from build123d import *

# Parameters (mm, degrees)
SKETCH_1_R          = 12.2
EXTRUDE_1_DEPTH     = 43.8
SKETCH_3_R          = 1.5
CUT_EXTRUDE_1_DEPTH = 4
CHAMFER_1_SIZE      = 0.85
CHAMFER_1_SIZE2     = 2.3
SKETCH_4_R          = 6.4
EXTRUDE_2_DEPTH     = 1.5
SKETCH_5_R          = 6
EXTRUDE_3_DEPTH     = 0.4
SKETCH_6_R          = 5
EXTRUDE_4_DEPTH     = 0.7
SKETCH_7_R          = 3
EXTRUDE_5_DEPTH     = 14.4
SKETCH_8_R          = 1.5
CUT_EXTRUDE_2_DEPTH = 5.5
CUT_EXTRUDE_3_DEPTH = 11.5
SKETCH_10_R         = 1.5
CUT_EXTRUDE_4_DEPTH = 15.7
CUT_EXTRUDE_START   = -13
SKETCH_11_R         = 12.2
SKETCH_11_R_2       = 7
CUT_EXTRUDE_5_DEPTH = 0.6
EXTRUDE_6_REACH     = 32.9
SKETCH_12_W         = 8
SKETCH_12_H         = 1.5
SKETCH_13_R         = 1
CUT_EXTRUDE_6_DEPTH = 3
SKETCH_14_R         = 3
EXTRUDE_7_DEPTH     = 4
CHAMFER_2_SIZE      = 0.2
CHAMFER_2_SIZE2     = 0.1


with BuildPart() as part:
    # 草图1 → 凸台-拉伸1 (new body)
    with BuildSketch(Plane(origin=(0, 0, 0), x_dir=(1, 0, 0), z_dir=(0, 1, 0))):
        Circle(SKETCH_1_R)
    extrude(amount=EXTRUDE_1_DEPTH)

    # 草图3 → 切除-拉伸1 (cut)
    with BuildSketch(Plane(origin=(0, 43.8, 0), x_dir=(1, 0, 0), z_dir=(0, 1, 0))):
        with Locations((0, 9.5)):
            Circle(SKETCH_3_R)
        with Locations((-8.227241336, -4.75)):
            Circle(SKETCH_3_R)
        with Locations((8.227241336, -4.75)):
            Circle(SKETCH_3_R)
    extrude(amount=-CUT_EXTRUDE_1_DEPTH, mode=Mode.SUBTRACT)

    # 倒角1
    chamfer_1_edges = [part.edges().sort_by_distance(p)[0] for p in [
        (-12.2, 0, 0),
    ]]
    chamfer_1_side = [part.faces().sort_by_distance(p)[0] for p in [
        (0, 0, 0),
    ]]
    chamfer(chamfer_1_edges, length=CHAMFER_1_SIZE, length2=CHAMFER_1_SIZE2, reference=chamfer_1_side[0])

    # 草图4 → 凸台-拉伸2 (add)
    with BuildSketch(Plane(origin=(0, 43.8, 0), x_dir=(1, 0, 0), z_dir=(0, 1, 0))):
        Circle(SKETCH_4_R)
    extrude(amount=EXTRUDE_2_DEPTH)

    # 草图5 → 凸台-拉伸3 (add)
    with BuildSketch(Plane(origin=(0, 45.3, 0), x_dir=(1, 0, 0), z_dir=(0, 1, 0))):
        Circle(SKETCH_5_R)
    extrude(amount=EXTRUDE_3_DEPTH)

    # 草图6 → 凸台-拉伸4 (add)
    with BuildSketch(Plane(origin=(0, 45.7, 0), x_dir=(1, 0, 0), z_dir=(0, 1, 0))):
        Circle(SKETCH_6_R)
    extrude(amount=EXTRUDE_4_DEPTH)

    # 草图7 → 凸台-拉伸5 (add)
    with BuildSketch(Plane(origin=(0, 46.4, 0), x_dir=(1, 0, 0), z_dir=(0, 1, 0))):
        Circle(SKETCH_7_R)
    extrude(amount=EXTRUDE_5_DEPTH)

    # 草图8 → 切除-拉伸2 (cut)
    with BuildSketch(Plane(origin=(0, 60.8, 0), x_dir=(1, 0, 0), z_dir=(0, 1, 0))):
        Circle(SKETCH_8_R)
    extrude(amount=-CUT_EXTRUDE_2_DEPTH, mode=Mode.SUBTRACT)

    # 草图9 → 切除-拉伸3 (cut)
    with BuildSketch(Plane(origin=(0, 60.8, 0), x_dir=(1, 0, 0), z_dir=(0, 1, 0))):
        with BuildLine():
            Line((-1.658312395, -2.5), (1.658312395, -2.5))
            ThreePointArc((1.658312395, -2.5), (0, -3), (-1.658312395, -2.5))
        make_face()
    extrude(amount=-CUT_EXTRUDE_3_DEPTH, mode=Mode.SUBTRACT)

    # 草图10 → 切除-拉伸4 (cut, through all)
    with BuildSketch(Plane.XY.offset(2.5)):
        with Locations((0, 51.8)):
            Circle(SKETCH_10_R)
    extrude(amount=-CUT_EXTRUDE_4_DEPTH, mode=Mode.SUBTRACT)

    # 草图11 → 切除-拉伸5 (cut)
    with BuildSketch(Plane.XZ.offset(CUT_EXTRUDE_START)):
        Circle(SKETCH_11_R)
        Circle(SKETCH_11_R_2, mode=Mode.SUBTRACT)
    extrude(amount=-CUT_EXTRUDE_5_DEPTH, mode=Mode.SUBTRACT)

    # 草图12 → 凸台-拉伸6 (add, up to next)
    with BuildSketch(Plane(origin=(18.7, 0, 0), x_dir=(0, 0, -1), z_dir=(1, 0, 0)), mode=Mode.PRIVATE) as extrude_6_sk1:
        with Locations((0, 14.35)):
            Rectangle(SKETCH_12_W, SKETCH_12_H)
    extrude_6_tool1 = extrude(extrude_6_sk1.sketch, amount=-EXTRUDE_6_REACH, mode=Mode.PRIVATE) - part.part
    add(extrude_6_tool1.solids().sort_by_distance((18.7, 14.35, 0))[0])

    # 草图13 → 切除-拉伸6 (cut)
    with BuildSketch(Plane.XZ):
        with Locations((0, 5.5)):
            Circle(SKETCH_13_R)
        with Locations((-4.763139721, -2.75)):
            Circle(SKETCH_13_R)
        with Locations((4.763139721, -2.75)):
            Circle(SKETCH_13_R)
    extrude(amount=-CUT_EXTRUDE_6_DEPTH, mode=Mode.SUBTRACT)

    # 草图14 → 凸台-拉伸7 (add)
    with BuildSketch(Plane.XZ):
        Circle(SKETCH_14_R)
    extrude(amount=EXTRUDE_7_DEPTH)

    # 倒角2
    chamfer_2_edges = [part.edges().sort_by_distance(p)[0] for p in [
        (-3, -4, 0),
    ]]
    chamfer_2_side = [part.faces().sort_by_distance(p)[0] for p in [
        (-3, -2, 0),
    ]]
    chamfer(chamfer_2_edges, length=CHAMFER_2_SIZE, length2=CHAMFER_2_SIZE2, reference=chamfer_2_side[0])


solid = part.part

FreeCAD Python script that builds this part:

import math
import FreeCAD as App
import Part
import Sketcher
Q = App.Units.Quantity


def edges_at(feature, points):
    """Names of the edges that pass closest to the given points."""
    edges = feature.Shape.Edges
    near = lambda p: min(range(len(edges)), key=lambda i: edges[i].distToShape(Part.Vertex(*p))[0])
    return sorted({f"Edge{near(p) + 1}" for p in points})

doc = App.newDocument("Part")
params = doc.addObject("Spreadsheet::Sheet", "Params")
for row, (alias, value) in enumerate([
    ("sketch1_diameter", "24.4 mm"),
    ("pad1_length", "43.8 mm"),
    ("sketch2_diameter", "3 mm"),
    ("pocket1_length", "4 mm"),
    ("chamfer_size", "0.85 mm"),
    ("chamfer_size2", "2.3 mm"),
    ("sketch3_diameter", "12.8 mm"),
    ("pad2_length", "1.5 mm"),
    ("sketch4_diameter", "12 mm"),
    ("pad3_length", "0.4 mm"),
    ("sketch5_diameter", "10 mm"),
    ("pad4_length", "0.7 mm"),
    ("sketch6_diameter", "6 mm"),
    ("pad5_length", "14.4 mm"),
    ("sketch7_diameter", "3 mm"),
    ("pocket2_length", "5.5 mm"),
    ("sketch8_radius", "3 mm"),
    ("pocket3_length", "11.5 mm"),
    ("sketch9_diameter", "3 mm"),
    ("sketch10_diameter", "14 mm"),
    ("sketch10_diameter2", "24.4 mm"),
    ("pocket5_length", "0.6 mm"),
    ("sketch11_height", "8 mm"),
    ("sketch11_width", "1.5 mm"),
    ("sketch12_diameter", "2 mm"),
    ("pocket6_length", "3 mm"),
    ("sketch13_diameter", "6 mm"),
    ("pad7_length", "4 mm"),
    ("chamfer2_size", "0.2 mm"),
    ("chamfer2_size2", "0.1 mm"),
], start=1):
    params.set(f"A{row}", alias)
    params.set(f"B{row}", "=" + value)
    params.setAlias(f"B{row}", alias)

body = doc.addObject("PartDesign::Body", "Body")

sketch1 = body.newObject("Sketcher::SketchObject", "Sketch")
sketch1.AttachmentSupport = (doc.getObject("XZ_Plane"), [""])
sketch1.MapMode = "FlatFace"
sketch1.addGeometry(Part.Circle(App.Vector(0, 0, 0), App.Vector(0, 0, 1), 12), False)
sketch1.addConstraint([
    Sketcher.Constraint("Coincident", 0, 3, -1, 1),
    Sketcher.Constraint("Diameter", 0, Q("24.4 mm")),
])
sketch1.setExpression("Constraints[1]", "Params.sketch1_diameter")
pad1 = body.newObject("PartDesign::Pad", "Pad")
pad1.Profile = sketch1
pad1.setExpression("Length", "Params.pad1_length")
pad1.Reversed = True

sketch2 = body.newObject("Sketcher::SketchObject", "Sketch001")
sketch2.AttachmentSupport = (doc.getObject("XZ_Plane"), [""])
sketch2.MapMode = "FlatFace"
sketch2.AttachmentOffset = App.Placement(App.Vector(0, 0, -43.8), App.Rotation())
sketch2.addGeometry([
    Part.Circle(App.Vector(0, -9.5, 0), App.Vector(0, 0, 1), 1.5),
    Part.Circle(App.Vector(-8.2, 4.8, 0), App.Vector(0, 0, 1), 1.5),
    Part.Circle(App.Vector(8.2, 4.8, 0), App.Vector(0, 0, 1), 1.5),
], False)
sketch2.addConstraint([
    Sketcher.Constraint("Equal", 0, 1),
    Sketcher.Constraint("Equal", 1, 2),
    Sketcher.Constraint("Symmetric", 1, 3, 2, 3, -2),
    Sketcher.Constraint("PointOnObject", 0, 3, -2),
    Sketcher.Constraint("Diameter", 0, Q("3 mm")),
    Sketcher.Constraint("DistanceY", 0, 3, -1, 1, Q("9.5 mm")),
    Sketcher.Constraint("DistanceY", -1, 1, 1, 3, Q("4.75 mm")),
    Sketcher.Constraint("DistanceX", 1, 3, -1, 1, Q("8.227241 mm")),
])
sketch2.setExpression("Constraints[4]", "Params.sketch2_diameter")
pocket1 = body.newObject("PartDesign::Pocket", "Pocket")
pocket1.Profile = sketch2
pocket1.setExpression("Length", "Params.pocket1_length")
pocket1.Reversed = True
doc.recompute()

chamfer = body.newObject("PartDesign::Chamfer", "Chamfer")
chamfer.Base = (pocket1, edges_at(pocket1, [(-12.2, 0, 0)]))
chamfer.ChamferType = "Two distances"
chamfer.setExpression("Size", "Params.chamfer_size")
chamfer.setExpression("Size2", "Params.chamfer_size2")
chamfer.FlipDirection = True

sketch3 = body.newObject("Sketcher::SketchObject", "Sketch002")
sketch3.AttachmentSupport = (doc.getObject("XZ_Plane"), [""])
sketch3.MapMode = "FlatFace"
sketch3.AttachmentOffset = App.Placement(App.Vector(0, 0, -43.8), App.Rotation())
sketch3.addGeometry(Part.Circle(App.Vector(0, 0, 0), App.Vector(0, 0, 1), 6), False)
sketch3.addConstraint([
    Sketcher.Constraint("Coincident", 0, 3, -1, 1),
    Sketcher.Constraint("Diameter", 0, Q("12.8 mm")),
])
sketch3.setExpression("Constraints[1]", "Params.sketch3_diameter")
pad2 = body.newObject("PartDesign::Pad", "Pad001")
pad2.Profile = sketch3
pad2.setExpression("Length", "Params.pad2_length")
pad2.Reversed = True

sketch4 = body.newObject("Sketcher::SketchObject", "Sketch003")
sketch4.AttachmentSupport = (doc.getObject("XZ_Plane"), [""])
sketch4.MapMode = "FlatFace"
sketch4.AttachmentOffset = App.Placement(App.Vector(0, 0, -45.3), App.Rotation())
sketch4.addGeometry(Part.Circle(App.Vector(0, 0, 0), App.Vector(0, 0, 1), 6), False)
sketch4.addConstraint([
    Sketcher.Constraint("Coincident", 0, 3, -1, 1),
    Sketcher.Constraint("Diameter", 0, Q("12 mm")),
])
sketch4.setExpression("Constraints[1]", "Params.sketch4_diameter")
pad3 = body.newObject("PartDesign::Pad", "Pad002")
pad3.Profile = sketch4
pad3.setExpression("Length", "Params.pad3_length")
pad3.Reversed = True

sketch5 = body.newObject("Sketcher::SketchObject", "Sketch004")
sketch5.AttachmentSupport = (doc.getObject("XZ_Plane"), [""])
sketch5.MapMode = "FlatFace"
sketch5.AttachmentOffset = App.Placement(App.Vector(0, 0, -45.7), App.Rotation())
sketch5.addGeometry(Part.Circle(App.Vector(0, 0, 0), App.Vector(0, 0, 1), 5), False)
sketch5.addConstraint([
    Sketcher.Constraint("Coincident", 0, 3, -1, 1),
    Sketcher.Constraint("Diameter", 0, Q("10 mm")),
])
sketch5.setExpression("Constraints[1]", "Params.sketch5_diameter")
pad4 = body.newObject("PartDesign::Pad", "Pad003")
pad4.Profile = sketch5
pad4.setExpression("Length", "Params.pad4_length")
pad4.Reversed = True

sketch6 = body.newObject("Sketcher::SketchObject", "Sketch005")
sketch6.AttachmentSupport = (doc.getObject("XZ_Plane"), [""])
sketch6.MapMode = "FlatFace"
sketch6.AttachmentOffset = App.Placement(App.Vector(0, 0, -46.4), App.Rotation())
sketch6.addGeometry(Part.Circle(App.Vector(0, 0, 0), App.Vector(0, 0, 1), 3), False)
sketch6.addConstraint([
    Sketcher.Constraint("Coincident", 0, 3, -1, 1),
    Sketcher.Constraint("Diameter", 0, Q("6 mm")),
])
sketch6.setExpression("Constraints[1]", "Params.sketch6_diameter")
pad5 = body.newObject("PartDesign::Pad", "Pad004")
pad5.Profile = sketch6
pad5.setExpression("Length", "Params.pad5_length")
pad5.Reversed = True

sketch7 = body.newObject("Sketcher::SketchObject", "Sketch006")
sketch7.AttachmentSupport = (doc.getObject("XZ_Plane"), [""])
sketch7.MapMode = "FlatFace"
sketch7.AttachmentOffset = App.Placement(App.Vector(0, 0, -60.8), App.Rotation())
sketch7.addGeometry(Part.Circle(App.Vector(0, 0, 0), App.Vector(0, 0, 1), 1.5), False)
sketch7.addConstraint([
    Sketcher.Constraint("Coincident", 0, 3, -1, 1),
    Sketcher.Constraint("Diameter", 0, Q("3 mm")),
])
sketch7.setExpression("Constraints[1]", "Params.sketch7_diameter")
pocket2 = body.newObject("PartDesign::Pocket", "Pocket001")
pocket2.Profile = sketch7
pocket2.setExpression("Length", "Params.pocket2_length")
pocket2.Reversed = True

sketch8 = body.newObject("Sketcher::SketchObject", "Sketch007")
sketch8.AttachmentSupport = (doc.getObject("XZ_Plane"), [""])
sketch8.MapMode = "FlatFace"
sketch8.AttachmentOffset = App.Placement(App.Vector(0, 0, -60.8), App.Rotation())
sketch8.addGeometry([
    Part.LineSegment(App.Vector(1.7, 2.5, 0), App.Vector(-1.7, 2.5, 0)),
    Part.ArcOfCircle(Part.Circle(App.Vector(0, 0, 0), App.Vector(0, 0, 1), 3), math.radians(56), math.radians(124)),
], False)
sketch8.addConstraint([
    Sketcher.Constraint("Coincident", 0, 1, 1, 1),
    Sketcher.Constraint("Coincident", 1, 2, 0, 2),
    Sketcher.Constraint("Horizontal", 0),
    Sketcher.Constraint("Coincident", 1, 3, -1, 1),
    Sketcher.Constraint("Radius", 1, Q("3 mm")),
    Sketcher.Constraint("DistanceY", -1, 1, 0, 1, Q("2.5 mm")),
])
sketch8.setExpression("Constraints[4]", "Params.sketch8_radius")
pocket3 = body.newObject("PartDesign::Pocket", "Pocket002")
pocket3.Profile = sketch8
pocket3.setExpression("Length", "Params.pocket3_length")
pocket3.Reversed = True

sketch9 = body.newObject("Sketcher::SketchObject", "Sketch008")
sketch9.AttachmentSupport = (doc.getObject("XY_Plane"), [""])
sketch9.MapMode = "FlatFace"
sketch9.AttachmentOffset = App.Placement(App.Vector(0, 0, 2.5), App.Rotation())
sketch9.addGeometry(Part.Circle(App.Vector(0, 51.8, 0), App.Vector(0, 0, 1), 1.5), False)
sketch9.addConstraint([
    Sketcher.Constraint("PointOnObject", 0, 3, -2),
    Sketcher.Constraint("Diameter", 0, Q("3 mm")),
    Sketcher.Constraint("DistanceY", -1, 1, 0, 3, Q("51.8 mm")),
])
sketch9.setExpression("Constraints[1]", "Params.sketch9_diameter")
pocket4 = body.newObject("PartDesign::Pocket", "Pocket003")
pocket4.Profile = sketch9
pocket4.Type = "ThroughAll"

sketch10 = body.newObject("Sketcher::SketchObject", "Sketch009")
sketch10.AttachmentSupport = (doc.getObject("XZ_Plane"), [""])
sketch10.MapMode = "FlatFace"
sketch10.AttachmentOffset = App.Placement(App.Vector(0, 0, -13), App.Rotation())
sketch10.addGeometry([
    Part.Circle(App.Vector(0, 0, 0), App.Vector(0, 0, 1), 12),
    Part.Circle(App.Vector(0, 0, 0), App.Vector(0, 0, 1), 7),
], False)
sketch10.addConstraint([
    Sketcher.Constraint("Coincident", 0, 3, -1, 1),
    Sketcher.Constraint("Coincident", 1, 3, -1, 1),
    Sketcher.Constraint("Diameter", 1, Q("14 mm")),
    Sketcher.Constraint("Diameter", 0, Q("24.4 mm")),
])
sketch10.setExpression("Constraints[2]", "Params.sketch10_diameter")
sketch10.setExpression("Constraints[3]", "Params.sketch10_diameter2")
pocket5 = body.newObject("PartDesign::Pocket", "Pocket004")
pocket5.Profile = sketch10
pocket5.setExpression("Length", "Params.pocket5_length")

sketch11 = body.newObject("Sketcher::SketchObject", "Sketch010")
sketch11.AttachmentSupport = (doc.getObject("YZ_Plane"), [""])
sketch11.MapMode = "FlatFace"
sketch11.AttachmentOffset = App.Placement(App.Vector(0, 0, 18.7), App.Rotation())
sketch11.addGeometry([
    Part.LineSegment(App.Vector(15.1, 4, 0), App.Vector(13.6, 4, 0)),
    Part.LineSegment(App.Vector(13.6, 4, 0), App.Vector(13.6, -4, 0)),
    Part.LineSegment(App.Vector(13.6, -4, 0), App.Vector(15.1, -4, 0)),
    Part.LineSegment(App.Vector(15.1, -4, 0), App.Vector(15.1, 4, 0)),
], False)
sketch11.addConstraint([
    Sketcher.Constraint("Coincident", 0, 2, 1, 1),
    Sketcher.Constraint("Coincident", 1, 2, 2, 1),
    Sketcher.Constraint("Coincident", 2, 2, 3, 1),
    Sketcher.Constraint("Coincident", 3, 2, 0, 1),
    Sketcher.Constraint("Horizontal", 0),
    Sketcher.Constraint("Vertical", 1),
    Sketcher.Constraint("Horizontal", 2),
    Sketcher.Constraint("Vertical", 3),
    Sketcher.Constraint("DistanceY", 1, 2, 1, 1, Q("8 mm")),
    Sketcher.Constraint("DistanceX", 0, 2, 0, 1, Q("1.5 mm")),
    Sketcher.Constraint("DistanceY", -1, 1, 0, 2, Q("4 mm")),
    Sketcher.Constraint("DistanceX", -1, 1, 0, 2, Q("13.6 mm")),
])
sketch11.setExpression("Constraints[8]", "Params.sketch11_height")
sketch11.setExpression("Constraints[9]", "Params.sketch11_width")
pad6 = body.newObject("PartDesign::Pad", "Pad005")
pad6.Profile = sketch11
pad6.Type = "UpToFirst"
pad6.Reversed = True

sketch12 = body.newObject("Sketcher::SketchObject", "Sketch011")
sketch12.AttachmentSupport = (doc.getObject("XZ_Plane"), [""])
sketch12.MapMode = "FlatFace"
sketch12.addGeometry([
    Part.Circle(App.Vector(0, 5.5, 0), App.Vector(0, 0, 1), 1),
    Part.Circle(App.Vector(-4.8, -2.8, 0), App.Vector(0, 0, 1), 1),
    Part.Circle(App.Vector(4.8, -2.8, 0), App.Vector(0, 0, 1), 1),
], False)
sketch12.addConstraint([
    Sketcher.Constraint("Equal", 0, 1),
    Sketcher.Constraint("Equal", 1, 2),
    Sketcher.Constraint("Symmetric", 1, 3, 2, 3, -2),
    Sketcher.Constraint("PointOnObject", 0, 3, -2),
    Sketcher.Constraint("Diameter", 0, Q("2 mm")),
    Sketcher.Constraint("DistanceY", -1, 1, 0, 3, Q("5.5 mm")),
    Sketcher.Constraint("DistanceY", 1, 3, -1, 1, Q("2.75 mm")),
    Sketcher.Constraint("DistanceX", 1, 3, -1, 1, Q("4.76314 mm")),
])
sketch12.setExpression("Constraints[4]", "Params.sketch12_diameter")
pocket6 = body.newObject("PartDesign::Pocket", "Pocket005")
pocket6.Profile = sketch12
pocket6.setExpression("Length", "Params.pocket6_length")

sketch13 = body.newObject("Sketcher::SketchObject", "Sketch012")
sketch13.AttachmentSupport = (doc.getObject("XZ_Plane"), [""])
sketch13.MapMode = "FlatFace"
sketch13.addGeometry(Part.Circle(App.Vector(0, 0, 0), App.Vector(0, 0, 1), 3), False)
sketch13.addConstraint([
    Sketcher.Constraint("Coincident", 0, 3, -1, 1),
    Sketcher.Constraint("Diameter", 0, Q("6 mm")),
])
sketch13.setExpression("Constraints[1]", "Params.sketch13_diameter")
pad7 = body.newObject("PartDesign::Pad", "Pad006")
pad7.Profile = sketch13
pad7.setExpression("Length", "Params.pad7_length")
doc.recompute()

chamfer2 = body.newObject("PartDesign::Chamfer", "Chamfer001")
chamfer2.Base = (pad7, edges_at(pad7, [(-3, -4, 0)]))
chamfer2.ChamferType = "Two distances"
chamfer2.setExpression("Size", "Params.chamfer2_size")
chamfer2.setExpression("Size2", "Params.chamfer2_size2")

doc.recompute()
